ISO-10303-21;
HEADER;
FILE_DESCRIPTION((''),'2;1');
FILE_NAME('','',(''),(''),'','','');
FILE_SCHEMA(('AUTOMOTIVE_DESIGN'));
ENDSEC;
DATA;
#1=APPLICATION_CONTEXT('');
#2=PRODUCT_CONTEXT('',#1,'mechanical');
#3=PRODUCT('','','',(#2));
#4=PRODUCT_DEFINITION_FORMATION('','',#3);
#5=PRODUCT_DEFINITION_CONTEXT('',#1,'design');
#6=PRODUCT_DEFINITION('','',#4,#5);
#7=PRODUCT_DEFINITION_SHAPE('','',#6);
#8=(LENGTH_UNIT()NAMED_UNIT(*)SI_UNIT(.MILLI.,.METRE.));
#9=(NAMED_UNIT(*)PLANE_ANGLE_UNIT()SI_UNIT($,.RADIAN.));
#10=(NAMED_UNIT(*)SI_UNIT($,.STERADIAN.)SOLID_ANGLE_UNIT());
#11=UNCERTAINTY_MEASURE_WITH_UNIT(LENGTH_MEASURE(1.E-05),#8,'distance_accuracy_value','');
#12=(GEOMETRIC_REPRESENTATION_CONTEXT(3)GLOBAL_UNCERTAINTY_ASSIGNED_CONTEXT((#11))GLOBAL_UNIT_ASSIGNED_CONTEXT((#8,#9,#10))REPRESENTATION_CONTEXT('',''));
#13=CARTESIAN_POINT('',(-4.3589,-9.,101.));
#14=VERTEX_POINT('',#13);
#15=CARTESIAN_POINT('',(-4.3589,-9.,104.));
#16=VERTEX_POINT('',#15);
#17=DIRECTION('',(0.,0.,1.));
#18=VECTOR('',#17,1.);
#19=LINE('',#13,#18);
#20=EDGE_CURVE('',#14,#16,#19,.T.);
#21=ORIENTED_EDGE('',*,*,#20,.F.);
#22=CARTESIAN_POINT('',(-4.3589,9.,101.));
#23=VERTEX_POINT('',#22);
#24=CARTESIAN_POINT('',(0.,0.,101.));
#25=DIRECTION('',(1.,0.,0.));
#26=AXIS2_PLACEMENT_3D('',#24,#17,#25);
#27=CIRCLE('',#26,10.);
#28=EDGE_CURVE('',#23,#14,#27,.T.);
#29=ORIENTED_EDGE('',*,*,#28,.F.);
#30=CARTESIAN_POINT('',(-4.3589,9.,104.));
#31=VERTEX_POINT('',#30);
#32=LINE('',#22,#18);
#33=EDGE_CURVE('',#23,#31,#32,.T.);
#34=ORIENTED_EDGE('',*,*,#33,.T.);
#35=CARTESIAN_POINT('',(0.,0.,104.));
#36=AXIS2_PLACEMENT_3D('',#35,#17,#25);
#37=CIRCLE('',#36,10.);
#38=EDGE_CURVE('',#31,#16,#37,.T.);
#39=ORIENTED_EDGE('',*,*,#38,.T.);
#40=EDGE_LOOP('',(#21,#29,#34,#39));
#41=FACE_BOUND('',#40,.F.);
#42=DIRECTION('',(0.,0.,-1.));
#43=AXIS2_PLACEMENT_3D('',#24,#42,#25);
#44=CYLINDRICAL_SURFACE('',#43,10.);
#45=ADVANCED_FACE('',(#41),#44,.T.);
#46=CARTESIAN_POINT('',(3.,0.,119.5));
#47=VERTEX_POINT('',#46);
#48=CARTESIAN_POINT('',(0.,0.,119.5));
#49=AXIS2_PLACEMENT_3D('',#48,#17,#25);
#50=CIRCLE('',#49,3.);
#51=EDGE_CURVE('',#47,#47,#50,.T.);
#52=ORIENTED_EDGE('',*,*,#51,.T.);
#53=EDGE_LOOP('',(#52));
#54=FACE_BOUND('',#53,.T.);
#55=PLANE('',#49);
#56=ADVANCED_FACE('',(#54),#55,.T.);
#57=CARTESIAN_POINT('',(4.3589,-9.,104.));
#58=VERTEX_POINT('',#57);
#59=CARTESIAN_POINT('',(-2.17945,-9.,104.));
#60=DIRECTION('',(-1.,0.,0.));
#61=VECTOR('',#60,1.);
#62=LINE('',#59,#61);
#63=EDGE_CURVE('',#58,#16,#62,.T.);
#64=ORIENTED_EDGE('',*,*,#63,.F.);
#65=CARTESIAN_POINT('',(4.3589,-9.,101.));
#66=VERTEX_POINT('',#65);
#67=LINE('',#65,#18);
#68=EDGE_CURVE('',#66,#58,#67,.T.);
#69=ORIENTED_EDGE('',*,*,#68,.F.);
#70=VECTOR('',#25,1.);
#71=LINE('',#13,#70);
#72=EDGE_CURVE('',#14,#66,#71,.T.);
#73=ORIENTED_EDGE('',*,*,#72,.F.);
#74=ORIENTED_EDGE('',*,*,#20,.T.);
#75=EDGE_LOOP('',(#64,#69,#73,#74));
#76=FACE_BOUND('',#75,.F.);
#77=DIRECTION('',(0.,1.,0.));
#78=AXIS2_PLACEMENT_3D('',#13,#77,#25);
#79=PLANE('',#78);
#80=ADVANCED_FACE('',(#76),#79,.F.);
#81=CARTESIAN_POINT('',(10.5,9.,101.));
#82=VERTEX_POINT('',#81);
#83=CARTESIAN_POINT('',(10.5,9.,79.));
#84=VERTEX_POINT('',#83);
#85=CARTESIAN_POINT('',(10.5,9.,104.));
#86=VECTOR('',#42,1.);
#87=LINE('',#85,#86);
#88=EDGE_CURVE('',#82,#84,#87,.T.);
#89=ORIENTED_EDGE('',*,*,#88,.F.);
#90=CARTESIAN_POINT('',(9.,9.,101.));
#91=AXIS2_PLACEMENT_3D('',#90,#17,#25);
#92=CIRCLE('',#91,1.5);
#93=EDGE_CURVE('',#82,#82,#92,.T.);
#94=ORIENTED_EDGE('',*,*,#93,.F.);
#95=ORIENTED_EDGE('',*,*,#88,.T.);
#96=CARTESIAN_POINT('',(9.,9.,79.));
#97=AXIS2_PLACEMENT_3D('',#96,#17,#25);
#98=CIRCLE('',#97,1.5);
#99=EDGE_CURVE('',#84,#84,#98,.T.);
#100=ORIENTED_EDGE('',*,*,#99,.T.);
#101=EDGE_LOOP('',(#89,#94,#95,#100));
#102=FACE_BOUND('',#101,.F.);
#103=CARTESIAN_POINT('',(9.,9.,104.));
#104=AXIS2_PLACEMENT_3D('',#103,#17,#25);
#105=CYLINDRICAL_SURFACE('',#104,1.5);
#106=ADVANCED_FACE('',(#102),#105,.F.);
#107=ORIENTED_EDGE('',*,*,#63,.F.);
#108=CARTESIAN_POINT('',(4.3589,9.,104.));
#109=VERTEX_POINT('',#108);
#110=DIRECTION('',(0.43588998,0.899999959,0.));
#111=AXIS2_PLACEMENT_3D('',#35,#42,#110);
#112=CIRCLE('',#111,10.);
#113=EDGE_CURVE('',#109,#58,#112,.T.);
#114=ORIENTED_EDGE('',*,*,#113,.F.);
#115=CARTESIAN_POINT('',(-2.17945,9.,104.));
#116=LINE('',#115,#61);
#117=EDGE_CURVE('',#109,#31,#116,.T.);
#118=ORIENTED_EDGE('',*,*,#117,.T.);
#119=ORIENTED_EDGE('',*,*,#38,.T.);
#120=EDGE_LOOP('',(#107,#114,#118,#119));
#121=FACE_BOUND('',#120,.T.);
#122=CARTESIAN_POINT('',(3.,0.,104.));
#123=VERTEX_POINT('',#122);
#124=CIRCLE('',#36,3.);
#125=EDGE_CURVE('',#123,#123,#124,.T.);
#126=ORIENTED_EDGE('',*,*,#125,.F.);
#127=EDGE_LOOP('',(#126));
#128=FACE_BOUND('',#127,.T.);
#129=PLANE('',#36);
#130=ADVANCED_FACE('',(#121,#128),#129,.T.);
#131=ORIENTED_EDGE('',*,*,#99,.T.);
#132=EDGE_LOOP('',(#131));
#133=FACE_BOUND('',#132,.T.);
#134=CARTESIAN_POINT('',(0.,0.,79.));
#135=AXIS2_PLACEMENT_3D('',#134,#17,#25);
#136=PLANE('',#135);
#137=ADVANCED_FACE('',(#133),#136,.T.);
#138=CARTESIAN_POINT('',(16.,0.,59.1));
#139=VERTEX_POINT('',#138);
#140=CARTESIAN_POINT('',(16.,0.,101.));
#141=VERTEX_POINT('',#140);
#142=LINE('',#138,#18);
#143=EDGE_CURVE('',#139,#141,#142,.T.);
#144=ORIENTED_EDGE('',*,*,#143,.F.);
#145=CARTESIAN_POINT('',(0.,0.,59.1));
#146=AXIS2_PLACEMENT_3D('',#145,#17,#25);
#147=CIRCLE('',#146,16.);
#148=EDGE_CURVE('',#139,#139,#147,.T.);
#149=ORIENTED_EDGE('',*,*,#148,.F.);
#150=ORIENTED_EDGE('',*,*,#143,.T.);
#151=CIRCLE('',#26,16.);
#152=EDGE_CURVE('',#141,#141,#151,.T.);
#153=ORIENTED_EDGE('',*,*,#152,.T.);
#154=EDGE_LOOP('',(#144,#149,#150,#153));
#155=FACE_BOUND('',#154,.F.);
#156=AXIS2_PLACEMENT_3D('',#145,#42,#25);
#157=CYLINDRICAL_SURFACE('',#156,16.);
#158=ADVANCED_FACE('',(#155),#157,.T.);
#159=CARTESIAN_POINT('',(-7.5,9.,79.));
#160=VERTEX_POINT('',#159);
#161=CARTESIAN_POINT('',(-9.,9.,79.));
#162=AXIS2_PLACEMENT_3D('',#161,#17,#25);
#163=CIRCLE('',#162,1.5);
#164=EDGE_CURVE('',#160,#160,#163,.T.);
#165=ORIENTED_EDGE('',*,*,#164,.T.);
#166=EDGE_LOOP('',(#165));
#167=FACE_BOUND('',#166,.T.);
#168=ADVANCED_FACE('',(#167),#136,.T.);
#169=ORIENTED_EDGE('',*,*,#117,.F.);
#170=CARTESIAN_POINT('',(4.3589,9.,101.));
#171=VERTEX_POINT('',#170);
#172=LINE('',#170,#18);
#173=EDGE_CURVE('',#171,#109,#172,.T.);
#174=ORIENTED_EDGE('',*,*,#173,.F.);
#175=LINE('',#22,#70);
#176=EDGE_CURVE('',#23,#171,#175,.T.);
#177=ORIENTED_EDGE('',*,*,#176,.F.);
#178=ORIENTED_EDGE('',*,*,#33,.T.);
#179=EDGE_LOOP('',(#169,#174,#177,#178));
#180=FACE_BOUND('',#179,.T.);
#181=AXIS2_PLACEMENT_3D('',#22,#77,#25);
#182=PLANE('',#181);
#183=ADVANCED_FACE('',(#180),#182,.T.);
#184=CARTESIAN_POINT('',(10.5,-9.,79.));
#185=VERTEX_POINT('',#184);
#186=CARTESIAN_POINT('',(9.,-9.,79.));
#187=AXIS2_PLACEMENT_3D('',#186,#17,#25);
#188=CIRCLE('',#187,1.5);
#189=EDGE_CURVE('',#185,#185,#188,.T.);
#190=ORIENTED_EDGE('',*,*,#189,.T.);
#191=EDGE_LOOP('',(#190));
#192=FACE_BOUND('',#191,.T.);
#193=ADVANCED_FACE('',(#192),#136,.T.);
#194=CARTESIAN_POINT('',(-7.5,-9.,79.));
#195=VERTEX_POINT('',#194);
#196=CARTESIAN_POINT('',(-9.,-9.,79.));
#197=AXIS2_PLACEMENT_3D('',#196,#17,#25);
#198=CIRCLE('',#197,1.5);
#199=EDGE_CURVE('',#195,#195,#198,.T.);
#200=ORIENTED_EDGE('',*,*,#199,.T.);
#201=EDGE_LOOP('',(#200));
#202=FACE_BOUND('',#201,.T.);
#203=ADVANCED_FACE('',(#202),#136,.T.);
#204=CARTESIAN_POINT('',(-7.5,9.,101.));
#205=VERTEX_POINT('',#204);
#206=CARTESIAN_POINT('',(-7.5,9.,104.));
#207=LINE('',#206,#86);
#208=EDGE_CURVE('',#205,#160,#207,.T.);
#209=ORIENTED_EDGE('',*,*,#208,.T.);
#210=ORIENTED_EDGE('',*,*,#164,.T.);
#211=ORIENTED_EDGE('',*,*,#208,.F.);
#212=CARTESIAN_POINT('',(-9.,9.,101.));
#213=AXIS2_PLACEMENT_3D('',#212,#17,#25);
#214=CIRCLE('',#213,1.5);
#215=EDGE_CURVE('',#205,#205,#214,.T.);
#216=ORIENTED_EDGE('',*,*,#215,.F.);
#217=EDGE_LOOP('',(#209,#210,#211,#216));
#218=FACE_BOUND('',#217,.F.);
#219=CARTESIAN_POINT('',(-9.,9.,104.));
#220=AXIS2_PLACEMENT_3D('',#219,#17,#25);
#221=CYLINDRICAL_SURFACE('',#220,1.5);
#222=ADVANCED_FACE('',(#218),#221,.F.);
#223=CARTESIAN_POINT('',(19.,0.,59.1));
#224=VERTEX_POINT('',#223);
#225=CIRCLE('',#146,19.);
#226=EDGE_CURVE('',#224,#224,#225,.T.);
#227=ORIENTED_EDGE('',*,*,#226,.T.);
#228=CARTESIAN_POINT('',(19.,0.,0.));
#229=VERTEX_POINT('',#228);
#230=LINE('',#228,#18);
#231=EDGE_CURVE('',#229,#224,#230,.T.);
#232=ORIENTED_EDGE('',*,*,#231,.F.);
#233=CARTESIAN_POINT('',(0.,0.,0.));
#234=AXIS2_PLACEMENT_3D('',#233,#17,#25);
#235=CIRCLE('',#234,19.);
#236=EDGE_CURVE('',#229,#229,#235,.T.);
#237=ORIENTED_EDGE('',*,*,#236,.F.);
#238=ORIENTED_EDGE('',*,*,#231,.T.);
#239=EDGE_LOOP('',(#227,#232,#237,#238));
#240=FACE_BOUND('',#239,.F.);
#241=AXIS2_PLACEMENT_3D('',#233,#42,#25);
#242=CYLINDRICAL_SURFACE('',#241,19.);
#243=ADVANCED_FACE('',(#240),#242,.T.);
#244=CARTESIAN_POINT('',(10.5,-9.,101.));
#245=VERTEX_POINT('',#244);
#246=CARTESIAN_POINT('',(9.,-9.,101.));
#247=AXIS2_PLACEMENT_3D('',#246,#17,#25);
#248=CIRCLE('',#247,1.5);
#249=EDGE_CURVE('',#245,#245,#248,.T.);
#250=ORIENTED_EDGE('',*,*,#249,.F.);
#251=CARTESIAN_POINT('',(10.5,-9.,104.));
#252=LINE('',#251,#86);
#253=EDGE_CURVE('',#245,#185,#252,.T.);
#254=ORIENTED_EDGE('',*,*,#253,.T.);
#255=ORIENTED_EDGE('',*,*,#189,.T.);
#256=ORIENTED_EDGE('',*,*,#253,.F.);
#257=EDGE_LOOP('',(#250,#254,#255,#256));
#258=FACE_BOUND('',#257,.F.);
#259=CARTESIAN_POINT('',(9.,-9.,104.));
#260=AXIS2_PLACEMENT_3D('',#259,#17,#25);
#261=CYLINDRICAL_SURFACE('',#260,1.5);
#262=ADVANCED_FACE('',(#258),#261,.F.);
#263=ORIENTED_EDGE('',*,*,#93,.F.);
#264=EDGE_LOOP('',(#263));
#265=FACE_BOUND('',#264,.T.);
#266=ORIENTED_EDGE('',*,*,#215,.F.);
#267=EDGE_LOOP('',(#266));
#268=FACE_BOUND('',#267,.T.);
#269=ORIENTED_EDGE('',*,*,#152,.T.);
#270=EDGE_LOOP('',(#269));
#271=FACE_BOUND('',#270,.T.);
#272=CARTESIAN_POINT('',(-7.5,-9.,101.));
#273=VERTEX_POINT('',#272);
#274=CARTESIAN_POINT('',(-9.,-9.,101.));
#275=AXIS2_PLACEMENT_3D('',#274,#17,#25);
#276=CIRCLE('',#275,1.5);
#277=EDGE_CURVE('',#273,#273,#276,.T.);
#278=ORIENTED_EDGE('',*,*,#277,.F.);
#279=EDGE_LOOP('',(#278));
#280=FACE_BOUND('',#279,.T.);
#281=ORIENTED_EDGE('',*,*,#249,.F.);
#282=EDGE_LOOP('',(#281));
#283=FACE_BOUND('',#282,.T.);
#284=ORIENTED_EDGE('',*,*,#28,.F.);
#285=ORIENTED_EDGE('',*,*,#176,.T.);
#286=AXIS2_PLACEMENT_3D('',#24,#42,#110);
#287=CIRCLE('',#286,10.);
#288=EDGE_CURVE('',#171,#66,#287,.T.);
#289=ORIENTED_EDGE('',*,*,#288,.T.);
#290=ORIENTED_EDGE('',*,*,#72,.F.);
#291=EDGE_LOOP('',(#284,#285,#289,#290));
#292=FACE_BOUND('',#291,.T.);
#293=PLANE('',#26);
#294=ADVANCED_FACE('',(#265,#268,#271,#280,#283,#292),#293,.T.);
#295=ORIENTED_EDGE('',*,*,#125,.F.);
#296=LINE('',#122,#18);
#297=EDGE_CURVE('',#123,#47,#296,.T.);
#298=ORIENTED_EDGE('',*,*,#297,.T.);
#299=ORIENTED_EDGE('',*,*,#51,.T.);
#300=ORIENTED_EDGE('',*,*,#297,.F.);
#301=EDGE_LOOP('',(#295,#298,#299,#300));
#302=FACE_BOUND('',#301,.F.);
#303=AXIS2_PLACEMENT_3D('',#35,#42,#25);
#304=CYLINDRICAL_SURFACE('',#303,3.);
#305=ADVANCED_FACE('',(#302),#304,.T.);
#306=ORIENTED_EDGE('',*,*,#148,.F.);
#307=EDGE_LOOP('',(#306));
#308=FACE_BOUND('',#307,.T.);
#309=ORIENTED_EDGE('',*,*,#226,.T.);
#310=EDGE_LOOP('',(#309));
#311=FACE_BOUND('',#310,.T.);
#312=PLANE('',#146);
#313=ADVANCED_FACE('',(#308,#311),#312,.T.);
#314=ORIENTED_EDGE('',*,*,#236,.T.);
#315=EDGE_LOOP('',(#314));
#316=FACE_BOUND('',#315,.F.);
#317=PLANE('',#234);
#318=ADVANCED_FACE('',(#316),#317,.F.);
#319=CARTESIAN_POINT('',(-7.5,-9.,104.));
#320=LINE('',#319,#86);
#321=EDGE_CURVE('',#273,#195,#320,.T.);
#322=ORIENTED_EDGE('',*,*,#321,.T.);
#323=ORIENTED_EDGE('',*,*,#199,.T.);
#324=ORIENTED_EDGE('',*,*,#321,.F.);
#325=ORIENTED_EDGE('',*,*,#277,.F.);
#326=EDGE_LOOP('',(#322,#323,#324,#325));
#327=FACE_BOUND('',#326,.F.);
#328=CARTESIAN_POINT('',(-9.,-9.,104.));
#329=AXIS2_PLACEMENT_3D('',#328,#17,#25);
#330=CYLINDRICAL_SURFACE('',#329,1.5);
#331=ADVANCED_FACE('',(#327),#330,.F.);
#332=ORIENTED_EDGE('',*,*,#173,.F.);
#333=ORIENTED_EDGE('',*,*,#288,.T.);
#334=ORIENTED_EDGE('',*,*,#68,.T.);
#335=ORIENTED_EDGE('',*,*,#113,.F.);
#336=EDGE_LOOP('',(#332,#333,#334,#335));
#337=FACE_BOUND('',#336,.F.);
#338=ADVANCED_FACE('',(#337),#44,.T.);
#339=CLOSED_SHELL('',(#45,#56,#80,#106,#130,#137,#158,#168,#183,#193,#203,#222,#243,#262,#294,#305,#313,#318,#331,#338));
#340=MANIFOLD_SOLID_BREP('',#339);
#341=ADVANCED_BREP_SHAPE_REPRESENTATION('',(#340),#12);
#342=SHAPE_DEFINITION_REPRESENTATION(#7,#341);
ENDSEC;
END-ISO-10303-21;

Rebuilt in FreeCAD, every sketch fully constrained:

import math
import FreeCAD as App
import Part
import Sketcher

V = App.Vector

doc = App.newDocument("Part")
body = doc.addObject("PartDesign::Body", "Body")

sketch1 = doc.addObject("Sketcher::SketchObject", "Sketch")
body.addObject(sketch1)
sketch1.AttachmentSupport = (doc.XY_Plane, [""])
sketch1.MapMode = "FlatFace"
sketch1.addGeometry(Part.Circle(V(0, 0, 0), V(0, 0, 1), 19), False)
sketch1.addConstraint(Sketcher.Constraint("Coincident", 0, 3, -1, 1))
sketch1.addConstraint(Sketcher.Constraint("Diameter", 0, 38.0))
pad1 = doc.addObject("PartDesign::Pad", "Pad")
body.addObject(pad1)
pad1.Profile = sketch1
pad1.Length = 59.1

sketch2 = doc.addObject("Sketcher::SketchObject", "Sketch001")
body.addObject(sketch2)
sketch2.AttachmentSupport = (doc.XY_Plane, [""])
sketch2.MapMode = "FlatFace"
sketch2.AttachmentOffset = App.Placement(V(0, 0, 59.1), App.Rotation())
sketch2.addGeometry(Part.Circle(V(0, 0, 0), V(0, 0, 1), 16), False)
sketch2.addConstraint(Sketcher.Constraint("Coincident", 0, 3, -1, 1))
sketch2.addConstraint(Sketcher.Constraint("Diameter", 0, 32.0))
pad2 = doc.addObject("PartDesign::Pad", "Pad001")
body.addObject(pad2)
pad2.Profile = sketch2
pad2.Length = 41.9

sketch3 = doc.addObject("Sketcher::SketchObject", "Sketch002")
body.addObject(sketch3)
sketch3.AttachmentSupport = (doc.XY_Plane, [""])
sketch3.MapMode = "FlatFace"
sketch3.AttachmentOffset = App.Placement(V(0, 0, 101), App.Rotation())
sketch3.addGeometry(Part.Circle(V(0, 0, 0), V(0, 0, 1), 10), False)
sketch3.addConstraint(Sketcher.Constraint("Coincident", 0, 3, -1, 1))
sketch3.addConstraint(Sketcher.Constraint("Diameter", 0, 20.0))
pad3 = doc.addObject("PartDesign::Pad", "Pad002")
body.addObject(pad3)
pad3.Profile = sketch3
pad3.Length = 3

sketch4 = doc.addObject("Sketcher::SketchObject", "Sketch003")
body.addObject(sketch4)
sketch4.AttachmentSupport = (doc.XY_Plane, [""])
sketch4.MapMode = "FlatFace"
sketch4.AttachmentOffset = App.Placement(V(0, 0, 104), App.Rotation())
sketch4.addGeometry(Part.Circle(V(0, 0, 0), V(0, 0, 1), 3), False)
sketch4.addConstraint(Sketcher.Constraint("Coincident", 0, 3, -1, 1))
sketch4.addConstraint(Sketcher.Constraint("Diameter", 0, 6.0))
pad4 = doc.addObject("PartDesign::Pad", "Pad003")
body.addObject(pad4)
pad4.Profile = sketch4
pad4.Length = 15.5

sketch5 = doc.addObject("Sketcher::SketchObject", "Sketch004")
body.addObject(sketch5)
sketch5.AttachmentSupport = (doc.XY_Plane, [""])
sketch5.MapMode = "FlatFace"
sketch5.AttachmentOffset = App.Placement(V(0, 0, 104), App.Rotation())
sketch5.addGeometry(Part.Circle(V(9, 9, 0), V(0, 0, 1), 1.5), False)
sketch5.addGeometry(Part.Circle(V(9, -9, 0), V(0, 0, 1), 1.5), False)
sketch5.addGeometry(Part.Circle(V(-9, -9, 0), V(0, 0, 1), 1.5), False)
sketch5.addGeometry(Part.Circle(V(-9, 9, 0), V(0, 0, 1), 1.5), False)
sketch5.addConstraint(Sketcher.Constraint("Equal", 0, 1))
sketch5.addConstraint(Sketcher.Constraint("Equal", 1, 2))
sketch5.addConstraint(Sketcher.Constraint("Equal", 2, 3))
sketch5.addConstraint(Sketcher.Constraint("Symmetric", 0, 3, 2, 3, -1, 1))
sketch5.addConstraint(Sketcher.Constraint("Symmetric", 1, 3, 3, 3, -1, 1))
sketch5.addConstraint(Sketcher.Constraint("Symmetric", 1, 3, 2, 3, -2))
sketch5.addConstraint(Sketcher.Constraint("Diameter", 0, 3.0))
sketch5.addConstraint(Sketcher.Constraint("DistanceY", 1, 3, 0, 3, 18.0))
sketch5.addConstraint(Sketcher.Constraint("DistanceX", 2, 3, 1, 3, 18.0))
pocket1 = doc.addObject("PartDesign::Pocket", "Pocket")
body.addObject(pocket1)
pocket1.Profile = sketch5
pocket1.Length = 25

sketch6 = doc.addObject("Sketcher::SketchObject", "Sketch005")
body.addObject(sketch6)
sketch6.AttachmentSupport = (doc.XY_Plane, [""])
sketch6.MapMode = "FlatFace"
sketch6.AttachmentOffset = App.Placement(V(0, 0, 101), App.Rotation())
sketch6.addGeometry(Part.LineSegment(V(-4.3589, 9, 0), V(4.3589, 9, 0)), False)
sketch6.addGeometry(Part.ArcOfCircle(Part.Circle(V(0, 0, 0), V(0, 0, 1), 10), math.radians(64.158062), math.radians(115.841938)), False)
sketch6.addGeometry(Part.ArcOfCircle(Part.Circle(V(0, 0, 0), V(0, 0, 1), 10), math.radians(-115.841938), math.radians(-64.158062)), False)
sketch6.addGeometry(Part.LineSegment(V(4.3589, -9, 0), V(-4.3589, -9, 0)), False)
sketch6.addConstraint(Sketcher.Constraint("Coincident", 0, 1, 1, 2))
sketch6.addConstraint(Sketcher.Constraint("Coincident", 1, 1, 0, 2))
sketch6.addConstraint(Sketcher.Constraint("Coincident", 2, 1, 3, 2))
sketch6.addConstraint(Sketcher.Constraint("Coincident", 3, 1, 2, 2))
sketch6.addConstraint(Sketcher.Constraint("Horizontal", 0))
sketch6.addConstraint(Sketcher.Constraint("Horizontal", 3))
sketch6.addConstraint(Sketcher.Constraint("Coincident", 1, 3, -1, 1))
sketch6.addConstraint(Sketcher.Constraint("Coincident", 2, 3, -1, 1))
sketch6.addConstraint(Sketcher.Constraint("Equal", 1, 2))
sketch6.addConstraint(Sketcher.Constraint("Vertical", 0, 1, 2, 1))
sketch6.addConstraint(Sketcher.Constraint("Radius", 1, 10.0))
sketch6.addConstraint(Sketcher.Constraint("DistanceY", 2, 1, 0, 1, 18.0))
pocket2 = doc.addObject("PartDesign::Pocket", "Pocket001")
body.addObject(pocket2)
pocket2.Profile = sketch6
pocket2.Type = "ThroughAll"
pocket2.Reversed = True

doc.recompute()
